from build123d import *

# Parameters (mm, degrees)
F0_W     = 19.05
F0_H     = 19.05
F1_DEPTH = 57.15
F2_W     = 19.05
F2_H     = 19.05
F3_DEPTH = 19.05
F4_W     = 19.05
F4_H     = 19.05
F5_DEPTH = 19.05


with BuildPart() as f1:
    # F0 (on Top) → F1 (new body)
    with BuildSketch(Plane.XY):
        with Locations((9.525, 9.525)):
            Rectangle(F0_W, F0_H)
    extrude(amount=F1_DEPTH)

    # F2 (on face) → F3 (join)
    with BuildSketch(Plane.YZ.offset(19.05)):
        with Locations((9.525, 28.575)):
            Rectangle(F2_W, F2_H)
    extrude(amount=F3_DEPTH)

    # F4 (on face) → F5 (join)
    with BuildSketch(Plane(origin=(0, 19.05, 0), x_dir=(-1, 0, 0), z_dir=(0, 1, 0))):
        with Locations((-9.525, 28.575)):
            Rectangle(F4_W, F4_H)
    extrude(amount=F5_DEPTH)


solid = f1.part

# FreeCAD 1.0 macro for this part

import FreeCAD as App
import Part
import Sketcher
from FreeCAD import Vector
Q = App.Units.Quantity

doc = App.newDocument("Part")
body = doc.addObject("PartDesign::Body", "Body")

# Sketch on XY plane
sketch1 = doc.addObject("Sketcher::SketchObject", "Sketch")
body.addObject(sketch1)
sketch1.AttachmentSupport = (doc.XY_Plane, [""])
sketch1.MapMode = "FlatFace"
sketch1.addGeometry([
    Part.LineSegment(Vector(0, 19.05, 0), Vector(0, 0, 0)),
    Part.LineSegment(Vector(0, 0, 0), Vector(19.05, 0, 0)),
    Part.LineSegment(Vector(19.05, 0, 0), Vector(19.05, 19.05, 0)),
    Part.LineSegment(Vector(19.05, 19.05, 0), Vector(0, 19.05, 0)),
], False)
sketch1.addConstraint([
    Sketcher.Constraint("Coincident", 0, 2, 1, 1),
    Sketcher.Constraint("Coincident", 1, 2, 2, 1),
    Sketcher.Constraint("Coincident", 2, 2, 3, 1),
    Sketcher.Constraint("Coincident", 3, 2, 0, 1),
    Sketcher.Constraint("Vertical", 0),
    Sketcher.Constraint("Horizontal", 1),
    Sketcher.Constraint("Vertical", 2),
    Sketcher.Constraint("Horizontal", 3),
    Sketcher.Constraint("Coincident", 0, 2, -1, 1),
    Sketcher.Constraint("Equal", 3, 0),
    Sketcher.Constraint("DistanceX", 1, 1, 1, 2, Q("0.75 in")),
])
pad1 = doc.addObject("PartDesign::Pad", "Pad")
body.addObject(pad1)
pad1.Profile = sketch1
pad1.Length = Q("2.25 in")

# Sketch on YZ plane
sketch2 = doc.addObject("Sketcher::SketchObject", "Sketch001")
body.addObject(sketch2)
sketch2.AttachmentSupport = (doc.YZ_Plane, [""])
sketch2.MapMode = "FlatFace"
sketch2.AttachmentOffset = App.Placement(Vector(0, 0, 0.75 * 25.4), App.Rotation())
sketch2.addGeometry([
    Part.LineSegment(Vector(0, 38.1, 0), Vector(0, 19.05, 0)),
    Part.LineSegment(Vector(0, 19.05, 0), Vector(19.05, 19.05, 0)),
    Part.LineSegment(Vector(19.05, 19.05, 0), Vector(19.05, 38.1, 0)),
    Part.LineSegment(Vector(19.05, 38.1, 0), Vector(0, 38.1, 0)),
], False)
sketch2.addConstraint([
    Sketcher.Constraint("Coincident", 0, 2, 1, 1),
    Sketcher.Constraint("Coincident", 1, 2, 2, 1),
    Sketcher.Constraint("Coincident", 2, 2, 3, 1),
    Sketcher.Constraint("Coincident", 3, 2, 0, 1),
    Sketcher.Constraint("Vertical", 0),
    Sketcher.Constraint("Horizontal", 1),
    Sketcher.Constraint("Vertical", 2),
    Sketcher.Constraint("Horizontal", 3),
    Sketcher.Constraint("PointOnObject", 0, 2, -2),
    Sketcher.Constraint("Equal", 3, 0),
    Sketcher.Constraint("DistanceX", 1, 1, 1, 2, Q("0.75 in")),
    Sketcher.Constraint("DistanceY", -1, 1, 2, 2, Q("1.5 in")),
])
pad2 = doc.addObject("PartDesign::Pad", "Pad001")
body.addObject(pad2)
pad2.Profile = sketch2
pad2.Length = Q("0.75 in")

# Sketch on XZ plane
sketch3 = doc.addObject("Sketcher::SketchObject", "Sketch002")
body.addObject(sketch3)
sketch3.AttachmentSupport = (doc.XZ_Plane, [""])
sketch3.MapMode = "FlatFace"
sketch3.AttachmentOffset = App.Placement(Vector(0, 0, -0.75 * 25.4), App.Rotation())
sketch3.addGeometry([
    Part.LineSegment(Vector(19.05, 38.1, 0), Vector(19.05, 19.05, 0)),
    Part.LineSegment(Vector(19.05, 19.05, 0), Vector(0, 19.05, 0)),
    Part.LineSegment(Vector(0, 19.05, 0), Vector(0, 38.1, 0)),
    Part.LineSegment(Vector(0, 38.1, 0), Vector(19.05, 38.1, 0)),
], False)
sketch3.addConstraint([
    Sketcher.Constraint("Coincident", 0, 2, 1, 1),
    Sketcher.Constraint("Coincident", 1, 2, 2, 1),
    Sketcher.Constraint("Coincident", 2, 2, 3, 1),
    Sketcher.Constraint("Coincident", 3, 2, 0, 1),
    Sketcher.Constraint("Vertical", 0),
    Sketcher.Constraint("Horizontal", 1),
    Sketcher.Constraint("Vertical", 2),
    Sketcher.Constraint("Horizontal", 3),
    Sketcher.Constraint("PointOnObject", 1, 2, -2),
    Sketcher.Constraint("Equal", 3, 0),
    Sketcher.Constraint("DistanceX", 1, 2, 1, 1, Q("0.75 in")),
    Sketcher.Constraint("DistanceY", -1, 1, 2, 2, Q("1.5 in")),
])
pad3 = doc.addObject("PartDesign::Pad", "Pad002")
body.addObject(pad3)
pad3.Profile = sketch3
pad3.Length = Q("0.75 in")
pad3.Reversed = True

doc.recompute()
